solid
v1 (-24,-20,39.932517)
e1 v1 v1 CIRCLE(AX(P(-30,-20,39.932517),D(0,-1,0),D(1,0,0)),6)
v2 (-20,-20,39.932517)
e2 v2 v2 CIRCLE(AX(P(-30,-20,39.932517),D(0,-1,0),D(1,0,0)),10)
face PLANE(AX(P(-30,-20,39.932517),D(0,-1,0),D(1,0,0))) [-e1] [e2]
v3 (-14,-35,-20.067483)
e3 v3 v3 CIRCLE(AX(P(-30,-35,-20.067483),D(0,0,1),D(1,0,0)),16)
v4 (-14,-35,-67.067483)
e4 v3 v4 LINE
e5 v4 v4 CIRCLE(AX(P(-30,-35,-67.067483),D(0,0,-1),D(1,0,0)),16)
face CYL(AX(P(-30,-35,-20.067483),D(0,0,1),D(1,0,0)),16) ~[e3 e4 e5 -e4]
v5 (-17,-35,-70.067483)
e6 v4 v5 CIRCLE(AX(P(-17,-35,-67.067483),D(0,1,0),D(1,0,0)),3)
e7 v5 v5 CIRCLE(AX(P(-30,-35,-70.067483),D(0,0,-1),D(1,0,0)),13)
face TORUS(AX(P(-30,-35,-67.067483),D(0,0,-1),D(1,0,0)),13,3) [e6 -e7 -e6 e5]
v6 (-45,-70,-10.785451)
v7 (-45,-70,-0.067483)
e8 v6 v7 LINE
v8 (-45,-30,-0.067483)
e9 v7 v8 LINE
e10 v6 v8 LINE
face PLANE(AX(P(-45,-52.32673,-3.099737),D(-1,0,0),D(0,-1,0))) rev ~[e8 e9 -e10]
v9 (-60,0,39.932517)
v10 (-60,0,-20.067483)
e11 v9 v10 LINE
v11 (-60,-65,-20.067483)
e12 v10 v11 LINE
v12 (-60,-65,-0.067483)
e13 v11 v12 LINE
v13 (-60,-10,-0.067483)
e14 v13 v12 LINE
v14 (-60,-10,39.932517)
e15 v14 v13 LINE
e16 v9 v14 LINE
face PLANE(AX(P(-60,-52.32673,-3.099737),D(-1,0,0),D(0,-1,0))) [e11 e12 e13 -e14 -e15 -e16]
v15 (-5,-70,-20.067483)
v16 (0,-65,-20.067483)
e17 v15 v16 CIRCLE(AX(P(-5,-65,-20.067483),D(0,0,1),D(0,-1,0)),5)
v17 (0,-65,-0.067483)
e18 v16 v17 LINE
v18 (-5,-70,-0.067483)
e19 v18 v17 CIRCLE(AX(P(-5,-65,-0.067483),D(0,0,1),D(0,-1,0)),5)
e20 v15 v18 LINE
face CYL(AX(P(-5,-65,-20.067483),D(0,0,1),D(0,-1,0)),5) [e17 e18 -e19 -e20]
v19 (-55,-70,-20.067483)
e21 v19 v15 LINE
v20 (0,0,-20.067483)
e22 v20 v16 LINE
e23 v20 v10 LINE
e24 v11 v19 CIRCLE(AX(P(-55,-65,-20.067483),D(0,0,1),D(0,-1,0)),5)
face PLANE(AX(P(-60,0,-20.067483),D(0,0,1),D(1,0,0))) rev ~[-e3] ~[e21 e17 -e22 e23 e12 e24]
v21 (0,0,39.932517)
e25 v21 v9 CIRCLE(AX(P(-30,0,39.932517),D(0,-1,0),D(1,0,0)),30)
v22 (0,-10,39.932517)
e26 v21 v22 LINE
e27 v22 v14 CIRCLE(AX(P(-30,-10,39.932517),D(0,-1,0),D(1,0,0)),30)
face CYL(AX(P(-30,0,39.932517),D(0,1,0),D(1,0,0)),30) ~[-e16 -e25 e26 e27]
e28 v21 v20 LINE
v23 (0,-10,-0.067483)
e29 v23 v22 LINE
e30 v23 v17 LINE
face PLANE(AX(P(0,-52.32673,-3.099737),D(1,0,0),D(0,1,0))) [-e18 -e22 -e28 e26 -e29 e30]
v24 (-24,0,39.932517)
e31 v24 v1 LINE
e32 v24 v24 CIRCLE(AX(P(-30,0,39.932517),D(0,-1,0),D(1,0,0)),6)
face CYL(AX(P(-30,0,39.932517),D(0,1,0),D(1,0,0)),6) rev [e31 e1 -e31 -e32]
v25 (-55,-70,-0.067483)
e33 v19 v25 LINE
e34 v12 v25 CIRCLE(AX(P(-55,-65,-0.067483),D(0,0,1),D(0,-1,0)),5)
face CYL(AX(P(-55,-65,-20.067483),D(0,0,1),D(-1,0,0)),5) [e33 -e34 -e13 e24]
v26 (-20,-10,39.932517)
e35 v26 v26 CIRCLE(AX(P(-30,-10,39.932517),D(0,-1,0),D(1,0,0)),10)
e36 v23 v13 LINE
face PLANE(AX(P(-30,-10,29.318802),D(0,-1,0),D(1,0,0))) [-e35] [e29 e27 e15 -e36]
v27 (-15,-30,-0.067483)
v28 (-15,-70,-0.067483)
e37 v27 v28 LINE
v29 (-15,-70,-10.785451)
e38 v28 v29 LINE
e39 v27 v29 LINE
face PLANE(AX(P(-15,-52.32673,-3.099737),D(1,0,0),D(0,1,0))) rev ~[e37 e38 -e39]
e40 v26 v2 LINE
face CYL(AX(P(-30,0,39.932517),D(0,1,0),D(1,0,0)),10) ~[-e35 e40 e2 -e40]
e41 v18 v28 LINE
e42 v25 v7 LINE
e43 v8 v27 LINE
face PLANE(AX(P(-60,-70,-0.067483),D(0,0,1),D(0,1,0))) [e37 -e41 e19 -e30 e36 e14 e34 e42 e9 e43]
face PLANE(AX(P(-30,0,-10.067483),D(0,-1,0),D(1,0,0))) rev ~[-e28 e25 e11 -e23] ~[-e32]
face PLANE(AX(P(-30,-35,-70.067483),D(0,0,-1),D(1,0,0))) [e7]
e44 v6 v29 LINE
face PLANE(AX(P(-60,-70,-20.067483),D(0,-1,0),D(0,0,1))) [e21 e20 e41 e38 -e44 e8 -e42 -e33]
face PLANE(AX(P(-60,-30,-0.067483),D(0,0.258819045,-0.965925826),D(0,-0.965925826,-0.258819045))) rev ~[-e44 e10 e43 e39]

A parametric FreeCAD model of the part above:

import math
import FreeCAD as App
import Part
import Sketcher
Q = App.Units.Quantity


def edges_at(feature, points):
    """Names of the edges that pass closest to the given points."""
    edges = feature.Shape.Edges
    near = lambda p: min(range(len(edges)), key=lambda i: edges[i].distToShape(Part.Vertex(*p))[0])
    return sorted({f"Edge{near(p) + 1}" for p in points})


def add_polygon(sketch, points):
    """Adds a closed chain of lines whose ends are joined by coincident constraints."""
    first, n = sketch.GeometryCount, len(points)
    for a, b in zip(points, points[1:] + points[:1]):
        sketch.addGeometry(Part.LineSegment(App.Vector(*a, 0), App.Vector(*b, 0)), False)
    for i in range(n):
        sketch.addConstraint(Sketcher.Constraint("Coincident", first + i, 2, first + (i + 1) % n, 1))

doc = App.newDocument("Part")
body = doc.addObject("PartDesign::Body", "Body")

sketch1 = doc.addObject("Sketcher::SketchObject", "Sketch")
body.addObject(sketch1)
sketch1.AttachmentSupport = (doc.XZ_Plane, [""])
sketch1.MapMode = "FlatFace"
sketch1.addGeometry([
    Part.Circle(App.Vector(-30, 40, 0), App.Vector(0, 0, 1), 10),
    Part.Circle(App.Vector(-30, 40, 0), App.Vector(0, 0, 1), 6),
], False)
sketch1.addConstraint([
    Sketcher.Constraint("Coincident", 1, 3, 0, 3),
    Sketcher.Constraint("Diameter", 0, 20.0),
    Sketcher.Constraint("Diameter", 1, 12.0),
    Sketcher.Constraint("DistanceX", 0, 3, -1, 1, 30.0),
    Sketcher.Constraint("DistanceY", -1, 1, 0, 3, 39.932517),
])
pad1 = doc.addObject("PartDesign::Pad", "Pad")
body.addObject(pad1)
pad1.Profile = sketch1
pad1.Length = 20

sketch2 = doc.addObject("Sketcher::SketchObject", "Sketch001")
body.addObject(sketch2)
sketch2.AttachmentSupport = (doc.XZ_Plane, [""])
sketch2.MapMode = "FlatFace"
sketch2.addGeometry([
    Part.LineSegment(App.Vector(-60, 40, 0), App.Vector(-60, 0, 0)),
    Part.LineSegment(App.Vector(-60, 0, 0), App.Vector(0, 0, 0)),
    Part.LineSegment(App.Vector(0, 0, 0), App.Vector(0, 40, 0)),
    Part.ArcOfCircle(Part.Circle(App.Vector(-30, 40, 0), App.Vector(0, 0, 1), 30), math.radians(0), math.radians(180)),
    Part.Circle(App.Vector(-30, 40, 0), App.Vector(0, 0, 1), 10),
], False)
sketch2.addConstraint([
    Sketcher.Constraint("Coincident", 0, 2, 1, 1),
    Sketcher.Constraint("Coincident", 1, 2, 2, 1),
    Sketcher.Constraint("Tangent", 2, 2, 3, 1),
    Sketcher.Constraint("Tangent", 3, 2, 0, 1),
    Sketcher.Constraint("Vertical", 0),
    Sketcher.Constraint("Horizontal", 1),
    Sketcher.Constraint("Vertical", 2),
    Sketcher.Constraint("Coincident", 4, 3, 3, 3),
    Sketcher.Constraint("PointOnObject", 1, 2, -2),
    Sketcher.Constraint("Diameter", 4, 20.0),
    Sketcher.Constraint("Radius", 3, 30.0),
    Sketcher.Constraint("DistanceY", 0, 2, 0, 1, 40.0),
    Sketcher.Constraint("DistanceY", -1, 1, 3, 3, 39.932517),
])
pad2 = doc.addObject("PartDesign::Pad", "Pad001")
body.addObject(pad2)
pad2.Profile = sketch2
pad2.Length = 10

sketch3 = doc.addObject("Sketcher::SketchObject", "Sketch002")
body.addObject(sketch3)
sketch3.AttachmentSupport = (doc.XZ_Plane, [""])
sketch3.MapMode = "FlatFace"
add_polygon(sketch3, [(-60, 0), (-60, -20), (0, -20), (0, 0)])
sketch3.addConstraint([
    Sketcher.Constraint("Vertical", 0),
    Sketcher.Constraint("Horizontal", 1),
    Sketcher.Constraint("Vertical", 2),
    Sketcher.Constraint("Horizontal", 3),
    Sketcher.Constraint("PointOnObject", 1, 2, -2),
    Sketcher.Constraint("DistanceX", 1, 1, 1, 2, 60.0),
    Sketcher.Constraint("DistanceY", 0, 2, 0, 1, 20.0),
    Sketcher.Constraint("DistanceY", 0, 2, -1, 1, 20.067483),
])
pad3 = doc.addObject("PartDesign::Pad", "Pad002")
body.addObject(pad3)
pad3.Profile = sketch3
pad3.Length = 70

sketch4 = doc.addObject("Sketcher::SketchObject", "Sketch003")
body.addObject(sketch4)
sketch4.AttachmentSupport = (doc.XY_Plane, [""])
sketch4.MapMode = "FlatFace"
sketch4.AttachmentOffset = App.Placement(App.Vector(0, 0, -20.067483), App.Rotation())
sketch4.addGeometry(Part.Circle(App.Vector(-30, -35, 0), App.Vector(0, 0, 1), 16), False)
sketch4.addConstraint([
    Sketcher.Constraint("Diameter", 0, 32.0),
    Sketcher.Constraint("DistanceX", 0, 3, -1, 1, 30.0),
    Sketcher.Constraint("DistanceY", 0, 3, -1, 1, 35.0),
])
pad4 = doc.addObject("PartDesign::Pad", "Pad003")
body.addObject(pad4)
pad4.Profile = sketch4
pad4.Length = 50
pad4.Reversed = True

sketch5 = doc.addObject("Sketcher::SketchObject", "Sketch004")
body.addObject(sketch5)
sketch5.AttachmentSupport = (doc.YZ_Plane, [""])
sketch5.MapMode = "FlatFace"
sketch5.AttachmentOffset = App.Placement(App.Vector(0, 0, -60), App.Rotation())
add_polygon(sketch5, [(-70, -11), (-70, 0), (-30, 0)])
sketch5.addConstraint([
    Sketcher.Constraint("Vertical", 0),
    Sketcher.Constraint("Horizontal", 1),
    Sketcher.Constraint("DistanceX", 1, 1, 1, 2, 40.0),
    Sketcher.Constraint("Angle", 2, Q("-165 deg")),
    Sketcher.Constraint("DistanceX", 0, 2, -1, 1, 70.0),
    Sketcher.Constraint("DistanceY", 2, 2, -1, 1, 10.785451),
])
pocket1 = doc.addObject("PartDesign::Pocket", "Pocket")
body.addObject(pocket1)
pocket1.Profile = sketch5
pocket1.Length = 63.8
pocket1.Reversed = True

sketch6 = doc.addObject("Sketcher::SketchObject", "Sketch005")
body.addObject(sketch6)
sketch6.AttachmentSupport = (doc.YZ_Plane, [""])
sketch6.MapMode = "FlatFace"
add_polygon(sketch6, [(-70, 0), (-70, -20), (0, -20), (0, 40), (-10, 40), (-10, 0)])
sketch6.addConstraint([
    Sketcher.Constraint("Vertical", 0),
    Sketcher.Constraint("Horizontal", 1),
    Sketcher.Constraint("Vertical", 2),
    Sketcher.Constraint("Horizontal", 3),
    Sketcher.Constraint("Vertical", 4),
    Sketcher.Constraint("Horizontal", 5),
    Sketcher.Constraint("PointOnObject", 1, 2, -2),
    Sketcher.Constraint("Equal", 5, 2),
    Sketcher.Constraint("DistanceX", 1, 1, 1, 2, 70.0),
    Sketcher.Constraint("DistanceX", 3, 2, 3, 1, 10.0),
    Sketcher.Constraint("DistanceY", 0, 2, 0, 1, 20.0),
    Sketcher.Constraint("DistanceY", 0, 2, -1, 1, 20.067483),
])
pad5 = doc.addObject("PartDesign::Pad", "Pad004")
body.addObject(pad5)
pad5.Profile = sketch6
pad5.Length = 15
pad5.Reversed = True

sketch7 = doc.addObject("Sketcher::SketchObject", "Sketch006")
body.addObject(sketch7)
sketch7.AttachmentSupport = (doc.YZ_Plane, [""])
sketch7.MapMode = "FlatFace"
sketch7.AttachmentOffset = App.Placement(App.Vector(0, 0, -60), App.Rotation())
add_polygon(sketch7, [(-70, 0), (-10, 0), (-10, 40), (0, 40), (0, -20), (-70, -20)])
sketch7.addConstraint([
    Sketcher.Constraint("Horizontal", 0),
    Sketcher.Constraint("Vertical", 1),
    Sketcher.Constraint("Horizontal", 2),
    Sketcher.Constraint("Vertical", 3),
    Sketcher.Constraint("Horizontal", 4),
    Sketcher.Constraint("Vertical", 5),
    Sketcher.Constraint("PointOnObject", 2, 2, -2),
    Sketcher.Constraint("Equal", 0, 3),
    Sketcher.Constraint("DistanceX", 0, 1, 0, 2, 60.0),
    Sketcher.Constraint("DistanceX", 2, 1, 2, 2, 10.0),
    Sketcher.Constraint("DistanceY", 1, 1, 1, 2, 40.0),
    Sketcher.Constraint("DistanceY", 0, 2, -1, 1, 0.067483),
])
pad6 = doc.addObject("PartDesign::Pad", "Pad005")
body.addObject(pad6)
pad6.Profile = sketch7
pad6.Length = 15
doc.recompute()

fillet = doc.addObject("PartDesign::Fillet", "Fillet")
body.addObject(fillet)
fillet.Base = (pad6, edges_at(pad6, [(-46, -35, -70.067)]))
fillet.Radius = 3
doc.recompute()

fillet2 = doc.addObject("PartDesign::Fillet", "Fillet001")
body.addObject(fillet2)
fillet2.Base = (fillet, edges_at(fillet, [(-60, -70, -10.067), (0, -70, -10.067)]))
fillet2.Radius = 5

doc.recompute()
